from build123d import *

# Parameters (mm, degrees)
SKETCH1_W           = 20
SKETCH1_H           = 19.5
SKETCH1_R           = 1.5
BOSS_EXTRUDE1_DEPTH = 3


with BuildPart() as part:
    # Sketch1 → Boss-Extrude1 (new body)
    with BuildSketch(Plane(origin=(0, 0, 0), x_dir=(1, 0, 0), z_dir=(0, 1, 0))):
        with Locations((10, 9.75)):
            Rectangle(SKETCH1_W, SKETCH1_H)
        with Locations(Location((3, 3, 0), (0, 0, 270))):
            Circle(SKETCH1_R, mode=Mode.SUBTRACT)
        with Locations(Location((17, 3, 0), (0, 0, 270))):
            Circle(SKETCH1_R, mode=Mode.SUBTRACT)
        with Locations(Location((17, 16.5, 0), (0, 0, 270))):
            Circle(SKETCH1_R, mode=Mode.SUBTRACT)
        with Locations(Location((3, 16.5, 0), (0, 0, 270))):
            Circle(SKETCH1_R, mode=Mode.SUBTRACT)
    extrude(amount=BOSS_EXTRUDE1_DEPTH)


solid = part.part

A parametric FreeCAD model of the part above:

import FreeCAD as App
import Part
import Sketcher
from FreeCAD import Vector
Q = App.Units.Quantity


def add_polygon(sketch, points):
    """Adds a closed chain of lines whose ends are joined by coincident constraints."""
    first, n = sketch.GeometryCount, len(points)
    for a, b in zip(points, points[1:] + points[:1]):
        sketch.addGeometry(Part.LineSegment(App.Vector(*a, 0), App.Vector(*b, 0)), False)
    for i in range(n):
        sketch.addConstraint(Sketcher.Constraint("Coincident", first + i, 2, first + (i + 1) % n, 1))

doc = App.newDocument("Part")
body = doc.addObject("PartDesign::Body", "Body")

sketch1 = body.newObject("Sketcher::SketchObject", "Sketch")
sketch1.AttachmentSupport = (doc.getObject("XZ_Plane"), [""])
sketch1.MapMode = "FlatFace"
add_polygon(sketch1, [(0, -19.5), (0, 0), (20, 0), (20, -19.5)])
sketch1.addGeometry(Part.Circle(Vector(3, -3, 0), Vector(0, 0, 1), 1.5), False)
sketch1.addGeometry(Part.Circle(Vector(17, -3, 0), Vector(0, 0, 1), 1.5), False)
sketch1.addGeometry(Part.Circle(Vector(3, -16.5, 0), Vector(0, 0, 1), 1.5), False)
sketch1.addGeometry(Part.Circle(Vector(17, -16.5, 0), Vector(0, 0, 1), 1.5), False)
sketch1.addConstraint([
    Sketcher.Constraint("Vertical", 0),
    Sketcher.Constraint("Horizontal", 1),
    Sketcher.Constraint("Vertical", 2),
    Sketcher.Constraint("Horizontal", 3),
    Sketcher.Constraint("Coincident", 0, 2, -1, 1),
    Sketcher.Constraint("Equal", 4, 5),
    Sketcher.Constraint("Equal", 5, 6),
    Sketcher.Constraint("Equal", 6, 7),
    Sketcher.Constraint("Horizontal", 4, 3, 5, 3),
    Sketcher.Constraint("Horizontal", 6, 3, 7, 3),
    Sketcher.Constraint("Vertical", 4, 3, 6, 3),
    Sketcher.Constraint("Vertical", 5, 3, 7, 3),
    Sketcher.Constraint("Diameter", 4, Q("3 mm")),
    Sketcher.Constraint("DistanceX", 1, 1, 1, 2, Q("20 mm")),
    Sketcher.Constraint("DistanceY", 0, 1, 0, 2, Q("19.5 mm")),
    Sketcher.Constraint("DistanceX", -1, 1, 4, 3, Q("3 mm")),
    Sketcher.Constraint("DistanceY", 4, 3, -1, 1, Q("3 mm")),
    Sketcher.Constraint("DistanceX", -1, 1, 5, 3, Q("17 mm")),
    Sketcher.Constraint("DistanceY", 2, 2, 7, 3, Q("3 mm")),
])
pad1 = body.newObject("PartDesign::Pad", "Pad")
pad1.Profile = sketch1
pad1.Length = 3
pad1.Reversed = True

doc.recompute()
